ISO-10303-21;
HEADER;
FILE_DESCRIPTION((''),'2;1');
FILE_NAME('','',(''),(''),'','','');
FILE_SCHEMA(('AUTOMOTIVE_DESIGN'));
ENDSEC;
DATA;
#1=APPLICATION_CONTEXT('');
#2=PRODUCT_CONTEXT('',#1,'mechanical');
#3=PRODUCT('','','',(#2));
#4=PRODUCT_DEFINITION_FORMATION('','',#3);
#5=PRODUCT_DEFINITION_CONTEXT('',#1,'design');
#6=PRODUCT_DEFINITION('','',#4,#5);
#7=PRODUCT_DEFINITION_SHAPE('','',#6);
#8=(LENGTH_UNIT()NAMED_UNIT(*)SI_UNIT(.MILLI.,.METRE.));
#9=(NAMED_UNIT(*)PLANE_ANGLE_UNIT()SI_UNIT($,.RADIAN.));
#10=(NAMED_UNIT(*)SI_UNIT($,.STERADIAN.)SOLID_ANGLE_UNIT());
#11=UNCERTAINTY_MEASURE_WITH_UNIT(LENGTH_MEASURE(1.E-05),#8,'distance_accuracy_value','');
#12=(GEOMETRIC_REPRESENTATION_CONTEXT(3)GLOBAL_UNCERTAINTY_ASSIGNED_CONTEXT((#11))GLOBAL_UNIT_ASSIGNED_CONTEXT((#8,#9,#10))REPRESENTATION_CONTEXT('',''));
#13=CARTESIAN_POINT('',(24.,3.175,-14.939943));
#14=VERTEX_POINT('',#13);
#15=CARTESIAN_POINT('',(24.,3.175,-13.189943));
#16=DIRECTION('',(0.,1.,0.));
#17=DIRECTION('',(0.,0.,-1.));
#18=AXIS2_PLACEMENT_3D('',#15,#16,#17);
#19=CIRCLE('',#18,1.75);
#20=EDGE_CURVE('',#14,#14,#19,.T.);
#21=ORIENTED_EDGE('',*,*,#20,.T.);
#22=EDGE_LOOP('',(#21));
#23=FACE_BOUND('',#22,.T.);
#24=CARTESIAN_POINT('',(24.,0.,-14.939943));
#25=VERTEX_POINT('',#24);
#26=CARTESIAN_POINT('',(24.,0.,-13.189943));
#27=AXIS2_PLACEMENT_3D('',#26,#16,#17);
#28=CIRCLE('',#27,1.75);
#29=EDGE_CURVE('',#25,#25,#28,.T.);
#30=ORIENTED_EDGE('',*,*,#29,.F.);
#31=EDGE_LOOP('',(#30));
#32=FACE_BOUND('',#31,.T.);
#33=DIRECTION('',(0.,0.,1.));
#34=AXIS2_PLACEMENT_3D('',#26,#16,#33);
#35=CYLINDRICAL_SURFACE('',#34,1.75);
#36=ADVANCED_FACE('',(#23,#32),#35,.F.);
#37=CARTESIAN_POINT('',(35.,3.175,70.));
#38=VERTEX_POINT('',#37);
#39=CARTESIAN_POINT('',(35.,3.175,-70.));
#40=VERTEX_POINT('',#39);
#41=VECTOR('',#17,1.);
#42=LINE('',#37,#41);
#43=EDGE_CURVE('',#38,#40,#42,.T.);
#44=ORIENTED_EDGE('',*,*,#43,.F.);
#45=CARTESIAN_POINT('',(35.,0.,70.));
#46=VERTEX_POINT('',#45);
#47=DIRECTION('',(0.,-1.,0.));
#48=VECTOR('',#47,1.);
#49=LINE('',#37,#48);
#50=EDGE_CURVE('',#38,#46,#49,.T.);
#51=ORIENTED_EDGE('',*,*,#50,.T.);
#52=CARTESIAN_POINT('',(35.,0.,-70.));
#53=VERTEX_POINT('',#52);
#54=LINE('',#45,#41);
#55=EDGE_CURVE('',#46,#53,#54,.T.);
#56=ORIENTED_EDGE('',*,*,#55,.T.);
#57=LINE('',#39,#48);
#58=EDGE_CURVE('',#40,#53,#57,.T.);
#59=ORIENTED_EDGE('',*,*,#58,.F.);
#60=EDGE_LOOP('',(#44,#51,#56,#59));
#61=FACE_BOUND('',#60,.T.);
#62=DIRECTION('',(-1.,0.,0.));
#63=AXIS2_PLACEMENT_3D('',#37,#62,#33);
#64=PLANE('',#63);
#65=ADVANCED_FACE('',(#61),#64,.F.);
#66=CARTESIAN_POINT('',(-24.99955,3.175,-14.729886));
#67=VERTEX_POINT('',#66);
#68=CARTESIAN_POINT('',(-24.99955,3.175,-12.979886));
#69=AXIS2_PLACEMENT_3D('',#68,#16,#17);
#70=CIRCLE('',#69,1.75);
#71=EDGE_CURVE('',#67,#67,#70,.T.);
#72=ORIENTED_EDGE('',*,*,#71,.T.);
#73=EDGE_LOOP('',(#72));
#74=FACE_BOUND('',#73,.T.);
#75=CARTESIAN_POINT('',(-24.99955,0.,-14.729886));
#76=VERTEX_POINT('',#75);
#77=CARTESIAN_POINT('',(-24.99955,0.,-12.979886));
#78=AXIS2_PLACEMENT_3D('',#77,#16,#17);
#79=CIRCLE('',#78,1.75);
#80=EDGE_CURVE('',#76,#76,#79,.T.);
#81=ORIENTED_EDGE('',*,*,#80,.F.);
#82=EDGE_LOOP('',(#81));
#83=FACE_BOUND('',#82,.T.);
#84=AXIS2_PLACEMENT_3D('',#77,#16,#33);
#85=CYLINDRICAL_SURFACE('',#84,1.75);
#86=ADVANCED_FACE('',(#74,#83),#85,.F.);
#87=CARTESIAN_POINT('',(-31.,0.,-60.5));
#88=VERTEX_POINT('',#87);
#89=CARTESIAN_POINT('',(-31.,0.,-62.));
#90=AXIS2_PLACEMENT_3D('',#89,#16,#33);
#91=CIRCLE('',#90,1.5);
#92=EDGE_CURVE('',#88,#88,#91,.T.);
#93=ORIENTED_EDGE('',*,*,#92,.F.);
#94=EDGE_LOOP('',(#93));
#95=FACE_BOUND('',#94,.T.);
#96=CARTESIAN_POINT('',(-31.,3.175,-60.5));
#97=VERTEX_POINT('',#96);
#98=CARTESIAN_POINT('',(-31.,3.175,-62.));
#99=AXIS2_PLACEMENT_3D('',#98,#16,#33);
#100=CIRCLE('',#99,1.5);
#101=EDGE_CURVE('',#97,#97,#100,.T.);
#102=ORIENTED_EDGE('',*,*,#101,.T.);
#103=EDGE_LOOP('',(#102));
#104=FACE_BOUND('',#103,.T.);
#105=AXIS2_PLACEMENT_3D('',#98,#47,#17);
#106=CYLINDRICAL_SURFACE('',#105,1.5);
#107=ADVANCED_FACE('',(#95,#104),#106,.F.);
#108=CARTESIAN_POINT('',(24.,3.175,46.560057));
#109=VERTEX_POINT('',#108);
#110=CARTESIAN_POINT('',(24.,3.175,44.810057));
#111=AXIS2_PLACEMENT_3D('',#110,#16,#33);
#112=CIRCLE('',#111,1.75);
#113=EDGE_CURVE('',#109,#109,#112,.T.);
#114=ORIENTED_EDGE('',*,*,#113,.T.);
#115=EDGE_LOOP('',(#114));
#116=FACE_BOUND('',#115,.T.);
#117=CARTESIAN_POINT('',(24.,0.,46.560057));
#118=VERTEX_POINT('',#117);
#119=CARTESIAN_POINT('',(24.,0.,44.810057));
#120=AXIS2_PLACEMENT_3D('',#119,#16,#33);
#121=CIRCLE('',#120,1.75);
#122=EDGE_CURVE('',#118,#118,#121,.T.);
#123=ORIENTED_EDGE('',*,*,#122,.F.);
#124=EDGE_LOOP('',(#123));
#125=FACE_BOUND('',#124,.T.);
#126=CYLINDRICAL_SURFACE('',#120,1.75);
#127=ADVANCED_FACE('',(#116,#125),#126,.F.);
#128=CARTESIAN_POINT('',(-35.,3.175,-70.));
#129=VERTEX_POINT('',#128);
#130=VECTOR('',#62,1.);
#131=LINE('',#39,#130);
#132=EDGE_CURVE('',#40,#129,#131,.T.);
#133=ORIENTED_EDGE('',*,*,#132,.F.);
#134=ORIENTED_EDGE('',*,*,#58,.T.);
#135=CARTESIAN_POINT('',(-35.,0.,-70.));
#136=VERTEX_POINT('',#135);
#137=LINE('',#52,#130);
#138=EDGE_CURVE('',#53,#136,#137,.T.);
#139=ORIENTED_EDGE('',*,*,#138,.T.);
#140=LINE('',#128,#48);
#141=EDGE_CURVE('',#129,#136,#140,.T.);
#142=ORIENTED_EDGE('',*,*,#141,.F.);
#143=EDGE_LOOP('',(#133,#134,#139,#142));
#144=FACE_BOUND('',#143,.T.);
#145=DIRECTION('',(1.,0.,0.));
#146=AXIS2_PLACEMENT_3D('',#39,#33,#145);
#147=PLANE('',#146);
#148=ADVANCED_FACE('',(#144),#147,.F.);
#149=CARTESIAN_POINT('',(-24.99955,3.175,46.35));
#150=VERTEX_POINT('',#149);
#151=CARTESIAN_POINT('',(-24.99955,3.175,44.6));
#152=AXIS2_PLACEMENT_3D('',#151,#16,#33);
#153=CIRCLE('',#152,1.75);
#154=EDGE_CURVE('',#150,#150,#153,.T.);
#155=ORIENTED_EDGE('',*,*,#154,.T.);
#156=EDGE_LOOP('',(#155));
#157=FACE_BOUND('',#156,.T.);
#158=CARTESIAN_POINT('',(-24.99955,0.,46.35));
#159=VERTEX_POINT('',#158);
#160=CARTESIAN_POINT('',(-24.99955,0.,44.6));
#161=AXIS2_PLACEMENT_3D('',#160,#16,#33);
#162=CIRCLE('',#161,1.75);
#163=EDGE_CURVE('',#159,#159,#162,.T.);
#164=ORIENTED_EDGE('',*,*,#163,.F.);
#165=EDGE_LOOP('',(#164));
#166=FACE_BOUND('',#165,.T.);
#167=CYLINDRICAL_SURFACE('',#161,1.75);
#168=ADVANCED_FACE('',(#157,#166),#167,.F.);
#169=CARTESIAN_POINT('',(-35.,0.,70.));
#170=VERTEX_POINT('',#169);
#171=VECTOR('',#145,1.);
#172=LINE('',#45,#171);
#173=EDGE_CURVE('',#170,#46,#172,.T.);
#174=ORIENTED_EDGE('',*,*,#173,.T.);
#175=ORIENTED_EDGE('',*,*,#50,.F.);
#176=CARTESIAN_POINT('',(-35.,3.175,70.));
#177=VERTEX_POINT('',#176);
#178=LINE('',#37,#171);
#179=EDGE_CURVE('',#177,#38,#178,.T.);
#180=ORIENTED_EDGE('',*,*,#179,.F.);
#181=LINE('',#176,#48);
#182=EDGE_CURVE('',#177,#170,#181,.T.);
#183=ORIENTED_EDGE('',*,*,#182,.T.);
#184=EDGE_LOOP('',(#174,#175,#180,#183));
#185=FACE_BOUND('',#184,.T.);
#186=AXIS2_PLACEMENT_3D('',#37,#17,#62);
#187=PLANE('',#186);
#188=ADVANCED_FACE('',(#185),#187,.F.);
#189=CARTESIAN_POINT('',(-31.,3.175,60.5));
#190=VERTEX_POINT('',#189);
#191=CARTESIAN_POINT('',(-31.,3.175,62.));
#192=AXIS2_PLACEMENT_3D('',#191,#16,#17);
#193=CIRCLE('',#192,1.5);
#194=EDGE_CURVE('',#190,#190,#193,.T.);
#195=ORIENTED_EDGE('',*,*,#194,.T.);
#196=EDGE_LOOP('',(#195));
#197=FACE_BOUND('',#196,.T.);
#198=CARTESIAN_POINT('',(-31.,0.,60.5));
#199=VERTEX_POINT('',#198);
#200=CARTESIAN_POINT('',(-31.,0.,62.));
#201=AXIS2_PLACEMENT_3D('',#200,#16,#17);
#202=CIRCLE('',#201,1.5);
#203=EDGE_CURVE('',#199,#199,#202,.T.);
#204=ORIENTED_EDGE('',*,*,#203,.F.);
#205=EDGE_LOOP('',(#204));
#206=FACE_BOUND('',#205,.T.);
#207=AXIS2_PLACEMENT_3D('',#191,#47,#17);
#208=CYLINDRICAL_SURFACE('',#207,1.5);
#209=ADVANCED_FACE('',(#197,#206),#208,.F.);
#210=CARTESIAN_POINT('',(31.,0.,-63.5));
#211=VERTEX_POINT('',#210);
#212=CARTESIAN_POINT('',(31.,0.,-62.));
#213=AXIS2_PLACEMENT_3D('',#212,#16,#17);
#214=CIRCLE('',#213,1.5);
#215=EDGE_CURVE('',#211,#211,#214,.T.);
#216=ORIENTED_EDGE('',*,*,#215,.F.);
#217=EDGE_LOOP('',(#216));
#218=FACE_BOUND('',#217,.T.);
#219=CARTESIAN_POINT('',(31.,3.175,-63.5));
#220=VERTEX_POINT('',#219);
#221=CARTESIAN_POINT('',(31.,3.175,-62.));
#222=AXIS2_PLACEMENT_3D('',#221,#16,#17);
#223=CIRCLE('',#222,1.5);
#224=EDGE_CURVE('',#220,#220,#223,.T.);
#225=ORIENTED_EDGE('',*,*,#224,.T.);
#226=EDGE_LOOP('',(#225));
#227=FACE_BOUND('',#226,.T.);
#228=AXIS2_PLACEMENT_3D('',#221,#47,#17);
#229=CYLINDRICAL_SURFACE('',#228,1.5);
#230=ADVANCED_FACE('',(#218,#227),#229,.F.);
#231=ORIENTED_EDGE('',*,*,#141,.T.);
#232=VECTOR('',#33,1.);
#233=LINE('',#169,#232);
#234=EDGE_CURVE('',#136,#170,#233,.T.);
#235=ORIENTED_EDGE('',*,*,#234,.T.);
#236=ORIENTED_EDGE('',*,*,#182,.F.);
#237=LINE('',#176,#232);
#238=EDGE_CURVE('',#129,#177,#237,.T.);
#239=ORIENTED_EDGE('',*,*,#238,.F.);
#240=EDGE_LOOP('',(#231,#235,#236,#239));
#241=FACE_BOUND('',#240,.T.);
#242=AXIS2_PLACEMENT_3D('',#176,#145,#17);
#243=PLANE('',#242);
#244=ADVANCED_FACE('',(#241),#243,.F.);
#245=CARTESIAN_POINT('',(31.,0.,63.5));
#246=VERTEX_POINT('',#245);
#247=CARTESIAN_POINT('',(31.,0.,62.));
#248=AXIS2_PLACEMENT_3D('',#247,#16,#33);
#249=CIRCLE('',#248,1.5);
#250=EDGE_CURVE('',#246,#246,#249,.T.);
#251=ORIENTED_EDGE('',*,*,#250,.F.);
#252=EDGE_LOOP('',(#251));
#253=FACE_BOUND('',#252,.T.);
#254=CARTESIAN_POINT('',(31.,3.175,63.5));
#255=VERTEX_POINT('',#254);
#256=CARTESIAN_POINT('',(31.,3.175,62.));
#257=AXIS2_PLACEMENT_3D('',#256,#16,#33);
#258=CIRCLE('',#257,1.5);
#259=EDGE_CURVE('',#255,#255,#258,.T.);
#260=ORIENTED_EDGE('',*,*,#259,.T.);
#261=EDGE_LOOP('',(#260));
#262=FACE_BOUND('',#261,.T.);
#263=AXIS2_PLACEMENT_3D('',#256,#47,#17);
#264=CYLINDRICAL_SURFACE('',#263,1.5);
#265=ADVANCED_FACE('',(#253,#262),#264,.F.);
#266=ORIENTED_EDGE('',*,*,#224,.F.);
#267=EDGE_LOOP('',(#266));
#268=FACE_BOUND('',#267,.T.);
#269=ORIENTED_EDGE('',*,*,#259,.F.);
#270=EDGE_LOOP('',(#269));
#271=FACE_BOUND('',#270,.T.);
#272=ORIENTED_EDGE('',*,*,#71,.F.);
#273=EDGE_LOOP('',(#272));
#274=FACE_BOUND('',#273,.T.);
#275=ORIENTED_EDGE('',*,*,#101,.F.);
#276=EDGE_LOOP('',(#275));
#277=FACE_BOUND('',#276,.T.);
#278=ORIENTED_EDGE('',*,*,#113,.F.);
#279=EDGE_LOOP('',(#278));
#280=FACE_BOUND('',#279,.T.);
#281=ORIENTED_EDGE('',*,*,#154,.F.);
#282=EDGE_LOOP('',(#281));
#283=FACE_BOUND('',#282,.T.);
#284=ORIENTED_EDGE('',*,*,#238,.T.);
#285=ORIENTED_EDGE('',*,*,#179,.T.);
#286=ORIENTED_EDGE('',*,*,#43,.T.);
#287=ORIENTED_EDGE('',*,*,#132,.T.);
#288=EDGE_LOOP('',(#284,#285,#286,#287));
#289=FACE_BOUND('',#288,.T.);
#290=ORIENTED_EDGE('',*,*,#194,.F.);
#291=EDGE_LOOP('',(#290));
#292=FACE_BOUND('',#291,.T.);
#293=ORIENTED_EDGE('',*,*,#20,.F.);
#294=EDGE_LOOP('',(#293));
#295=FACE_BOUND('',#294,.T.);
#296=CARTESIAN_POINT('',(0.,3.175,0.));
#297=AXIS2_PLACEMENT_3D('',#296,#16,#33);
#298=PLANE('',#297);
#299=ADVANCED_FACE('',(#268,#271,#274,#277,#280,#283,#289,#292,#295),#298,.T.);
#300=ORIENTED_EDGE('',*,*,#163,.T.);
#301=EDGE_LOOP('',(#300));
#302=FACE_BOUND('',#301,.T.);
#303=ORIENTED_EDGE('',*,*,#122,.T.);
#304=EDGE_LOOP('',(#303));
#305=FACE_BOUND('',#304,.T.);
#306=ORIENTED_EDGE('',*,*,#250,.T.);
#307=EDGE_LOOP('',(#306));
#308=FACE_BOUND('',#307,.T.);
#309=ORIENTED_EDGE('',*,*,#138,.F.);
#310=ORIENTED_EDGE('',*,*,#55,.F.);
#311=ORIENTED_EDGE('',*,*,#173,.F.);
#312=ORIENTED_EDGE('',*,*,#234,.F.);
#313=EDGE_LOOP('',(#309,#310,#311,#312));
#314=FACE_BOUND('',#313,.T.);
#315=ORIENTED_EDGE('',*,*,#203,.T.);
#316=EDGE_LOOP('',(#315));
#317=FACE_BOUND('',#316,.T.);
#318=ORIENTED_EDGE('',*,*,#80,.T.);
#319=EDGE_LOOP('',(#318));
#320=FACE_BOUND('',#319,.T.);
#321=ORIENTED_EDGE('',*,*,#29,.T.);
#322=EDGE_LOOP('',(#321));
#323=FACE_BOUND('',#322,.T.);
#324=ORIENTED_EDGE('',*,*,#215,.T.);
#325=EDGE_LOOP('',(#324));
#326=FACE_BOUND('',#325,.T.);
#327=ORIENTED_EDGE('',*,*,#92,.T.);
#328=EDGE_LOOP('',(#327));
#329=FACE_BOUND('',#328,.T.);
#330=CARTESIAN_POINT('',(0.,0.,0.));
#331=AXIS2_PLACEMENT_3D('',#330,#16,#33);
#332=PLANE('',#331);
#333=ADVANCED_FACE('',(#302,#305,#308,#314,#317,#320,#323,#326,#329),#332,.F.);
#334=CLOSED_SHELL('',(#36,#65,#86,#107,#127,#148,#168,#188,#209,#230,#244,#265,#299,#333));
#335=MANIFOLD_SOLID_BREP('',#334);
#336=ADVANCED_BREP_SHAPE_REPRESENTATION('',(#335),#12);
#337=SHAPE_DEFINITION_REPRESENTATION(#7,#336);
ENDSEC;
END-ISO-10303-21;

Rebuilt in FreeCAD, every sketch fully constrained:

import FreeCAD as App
import Part
import Sketcher

V = App.Vector
Q = App.Units.Quantity

doc = App.newDocument("Part")
body = doc.addObject("PartDesign::Body", "Body")

# Sketch on XZ plane
sketch1 = doc.addObject("Sketcher::SketchObject", "Sketch")
body.addObject(sketch1)
sketch1.AttachmentSupport = (doc.XZ_Plane, [""])
sketch1.MapMode = "FlatFace"
sketch1.addGeometry(Part.LineSegment(V(-35, -70, 0), V(-35, 70, 0)), False)
sketch1.addGeometry(Part.LineSegment(V(-35, 70, 0), V(35, 70, 0)), False)
sketch1.addGeometry(Part.LineSegment(V(35, 70, 0), V(35, -70, 0)), False)
sketch1.addGeometry(Part.LineSegment(V(35, -70, 0), V(-35, -70, 0)), False)
sketch1.addGeometry(Part.Circle(V(-31, 62, 0), V(0, 0, 1), 1.5), False)
sketch1.addGeometry(Part.Circle(V(31, 62, 0), V(0, 0, 1), 1.5), False)
sketch1.addGeometry(Part.Circle(V(-31, -62, 0), V(0, 0, 1), 1.5), False)
sketch1.addGeometry(Part.Circle(V(31, -62, 0), V(0, 0, 1), 1.5), False)
sketch1.addConstraint(Sketcher.Constraint("Coincident", 0, 2, 1, 1))
sketch1.addConstraint(Sketcher.Constraint("Coincident", 1, 2, 2, 1))
sketch1.addConstraint(Sketcher.Constraint("Coincident", 2, 2, 3, 1))
sketch1.addConstraint(Sketcher.Constraint("Coincident", 3, 2, 0, 1))
sketch1.addConstraint(Sketcher.Constraint("Vertical", 0))
sketch1.addConstraint(Sketcher.Constraint("Horizontal", 1))
sketch1.addConstraint(Sketcher.Constraint("Vertical", 2))
sketch1.addConstraint(Sketcher.Constraint("Horizontal", 3))
sketch1.addConstraint(Sketcher.Constraint("Equal", 4, 5))
sketch1.addConstraint(Sketcher.Constraint("Equal", 5, 6))
sketch1.addConstraint(Sketcher.Constraint("Equal", 6, 7))
sketch1.addConstraint(Sketcher.Constraint("Symmetric", 5, 3, 6, 3, -1, 1))
sketch1.addConstraint(Sketcher.Constraint("Symmetric", 4, 3, 7, 3, -1, 1))
sketch1.addConstraint(Sketcher.Constraint("Symmetric", 0, 2, 2, 2, -1, 1))
sketch1.addConstraint(Sketcher.Constraint("Symmetric", 4, 3, 5, 3, -2))
sketch1.addConstraint(Sketcher.Constraint("Diameter", 4, Q("3 mm")))
sketch1.addConstraint(Sketcher.Constraint("DistanceX", 1, 1, 1, 2, Q("70 mm")))
sketch1.addConstraint(Sketcher.Constraint("DistanceY", 0, 1, 0, 2, Q("140 mm")))
sketch1.addConstraint(Sketcher.Constraint("DistanceX", 4, 3, -1, 1, Q("31 mm")))
sketch1.addConstraint(Sketcher.Constraint("DistanceY", -1, 1, 4, 3, Q("62 mm")))
pad1 = doc.addObject("PartDesign::Pad", "Pad")
body.addObject(pad1)
pad1.Profile = sketch1
pad1.Length = 3.175
pad1.Reversed = True

# Sketch on XZ plane
sketch2 = doc.addObject("Sketcher::SketchObject", "Sketch001")
body.addObject(sketch2)
sketch2.AttachmentSupport = (doc.XZ_Plane, [""])
sketch2.MapMode = "FlatFace"
sketch2.AttachmentOffset = App.Placement(V(0, 0, -3.175), App.Rotation())
sketch2.addGeometry(Part.Circle(V(-24.99955, 44.6, 0), V(0, 0, 1), 1.75), False)
sketch2.addGeometry(Part.Circle(V(24, 44.810057, 0), V(0, 0, 1), 1.75), False)
sketch2.addGeometry(Part.Circle(V(24, -13.189943, 0), V(0, 0, 1), 1.75), False)
sketch2.addGeometry(Part.Circle(V(-24.99955, -12.979886, 0), V(0, 0, 1), 1.75), False)
sketch2.addConstraint(Sketcher.Constraint("Equal", 0, 1))
sketch2.addConstraint(Sketcher.Constraint("Equal", 1, 2))
sketch2.addConstraint(Sketcher.Constraint("Equal", 2, 3))
sketch2.addConstraint(Sketcher.Constraint("Vertical", 1, 3, 2, 3))
sketch2.addConstraint(Sketcher.Constraint("Vertical", 0, 3, 3, 3))
sketch2.addConstraint(Sketcher.Constraint("Diameter", 0, Q("3.5 mm")))
sketch2.addConstraint(Sketcher.Constraint("DistanceX", -1, 1, 1, 3, Q("24 mm")))
sketch2.addConstraint(Sketcher.Constraint("DistanceY", 2, 3, 1, 3, Q("58 mm")))
sketch2.addConstraint(Sketcher.Constraint("DistanceY", -1, 1, 0, 3, Q("44.6 mm")))
sketch2.addConstraint(Sketcher.Constraint("DistanceX", 0, 3, -1, 1, Q("24.99955 mm")))
sketch2.addConstraint(Sketcher.Constraint("DistanceY", -1, 1, 1, 3, Q("44.810057 mm")))
sketch2.addConstraint(Sketcher.Constraint("DistanceY", 3, 3, -1, 1, Q("12.979886 mm")))
pocket1 = doc.addObject("PartDesign::Pocket", "Pocket")
body.addObject(pocket1)
pocket1.Profile = sketch2
pocket1.Type = "ThroughAll"
pocket1.Reversed = True

doc.recompute()
